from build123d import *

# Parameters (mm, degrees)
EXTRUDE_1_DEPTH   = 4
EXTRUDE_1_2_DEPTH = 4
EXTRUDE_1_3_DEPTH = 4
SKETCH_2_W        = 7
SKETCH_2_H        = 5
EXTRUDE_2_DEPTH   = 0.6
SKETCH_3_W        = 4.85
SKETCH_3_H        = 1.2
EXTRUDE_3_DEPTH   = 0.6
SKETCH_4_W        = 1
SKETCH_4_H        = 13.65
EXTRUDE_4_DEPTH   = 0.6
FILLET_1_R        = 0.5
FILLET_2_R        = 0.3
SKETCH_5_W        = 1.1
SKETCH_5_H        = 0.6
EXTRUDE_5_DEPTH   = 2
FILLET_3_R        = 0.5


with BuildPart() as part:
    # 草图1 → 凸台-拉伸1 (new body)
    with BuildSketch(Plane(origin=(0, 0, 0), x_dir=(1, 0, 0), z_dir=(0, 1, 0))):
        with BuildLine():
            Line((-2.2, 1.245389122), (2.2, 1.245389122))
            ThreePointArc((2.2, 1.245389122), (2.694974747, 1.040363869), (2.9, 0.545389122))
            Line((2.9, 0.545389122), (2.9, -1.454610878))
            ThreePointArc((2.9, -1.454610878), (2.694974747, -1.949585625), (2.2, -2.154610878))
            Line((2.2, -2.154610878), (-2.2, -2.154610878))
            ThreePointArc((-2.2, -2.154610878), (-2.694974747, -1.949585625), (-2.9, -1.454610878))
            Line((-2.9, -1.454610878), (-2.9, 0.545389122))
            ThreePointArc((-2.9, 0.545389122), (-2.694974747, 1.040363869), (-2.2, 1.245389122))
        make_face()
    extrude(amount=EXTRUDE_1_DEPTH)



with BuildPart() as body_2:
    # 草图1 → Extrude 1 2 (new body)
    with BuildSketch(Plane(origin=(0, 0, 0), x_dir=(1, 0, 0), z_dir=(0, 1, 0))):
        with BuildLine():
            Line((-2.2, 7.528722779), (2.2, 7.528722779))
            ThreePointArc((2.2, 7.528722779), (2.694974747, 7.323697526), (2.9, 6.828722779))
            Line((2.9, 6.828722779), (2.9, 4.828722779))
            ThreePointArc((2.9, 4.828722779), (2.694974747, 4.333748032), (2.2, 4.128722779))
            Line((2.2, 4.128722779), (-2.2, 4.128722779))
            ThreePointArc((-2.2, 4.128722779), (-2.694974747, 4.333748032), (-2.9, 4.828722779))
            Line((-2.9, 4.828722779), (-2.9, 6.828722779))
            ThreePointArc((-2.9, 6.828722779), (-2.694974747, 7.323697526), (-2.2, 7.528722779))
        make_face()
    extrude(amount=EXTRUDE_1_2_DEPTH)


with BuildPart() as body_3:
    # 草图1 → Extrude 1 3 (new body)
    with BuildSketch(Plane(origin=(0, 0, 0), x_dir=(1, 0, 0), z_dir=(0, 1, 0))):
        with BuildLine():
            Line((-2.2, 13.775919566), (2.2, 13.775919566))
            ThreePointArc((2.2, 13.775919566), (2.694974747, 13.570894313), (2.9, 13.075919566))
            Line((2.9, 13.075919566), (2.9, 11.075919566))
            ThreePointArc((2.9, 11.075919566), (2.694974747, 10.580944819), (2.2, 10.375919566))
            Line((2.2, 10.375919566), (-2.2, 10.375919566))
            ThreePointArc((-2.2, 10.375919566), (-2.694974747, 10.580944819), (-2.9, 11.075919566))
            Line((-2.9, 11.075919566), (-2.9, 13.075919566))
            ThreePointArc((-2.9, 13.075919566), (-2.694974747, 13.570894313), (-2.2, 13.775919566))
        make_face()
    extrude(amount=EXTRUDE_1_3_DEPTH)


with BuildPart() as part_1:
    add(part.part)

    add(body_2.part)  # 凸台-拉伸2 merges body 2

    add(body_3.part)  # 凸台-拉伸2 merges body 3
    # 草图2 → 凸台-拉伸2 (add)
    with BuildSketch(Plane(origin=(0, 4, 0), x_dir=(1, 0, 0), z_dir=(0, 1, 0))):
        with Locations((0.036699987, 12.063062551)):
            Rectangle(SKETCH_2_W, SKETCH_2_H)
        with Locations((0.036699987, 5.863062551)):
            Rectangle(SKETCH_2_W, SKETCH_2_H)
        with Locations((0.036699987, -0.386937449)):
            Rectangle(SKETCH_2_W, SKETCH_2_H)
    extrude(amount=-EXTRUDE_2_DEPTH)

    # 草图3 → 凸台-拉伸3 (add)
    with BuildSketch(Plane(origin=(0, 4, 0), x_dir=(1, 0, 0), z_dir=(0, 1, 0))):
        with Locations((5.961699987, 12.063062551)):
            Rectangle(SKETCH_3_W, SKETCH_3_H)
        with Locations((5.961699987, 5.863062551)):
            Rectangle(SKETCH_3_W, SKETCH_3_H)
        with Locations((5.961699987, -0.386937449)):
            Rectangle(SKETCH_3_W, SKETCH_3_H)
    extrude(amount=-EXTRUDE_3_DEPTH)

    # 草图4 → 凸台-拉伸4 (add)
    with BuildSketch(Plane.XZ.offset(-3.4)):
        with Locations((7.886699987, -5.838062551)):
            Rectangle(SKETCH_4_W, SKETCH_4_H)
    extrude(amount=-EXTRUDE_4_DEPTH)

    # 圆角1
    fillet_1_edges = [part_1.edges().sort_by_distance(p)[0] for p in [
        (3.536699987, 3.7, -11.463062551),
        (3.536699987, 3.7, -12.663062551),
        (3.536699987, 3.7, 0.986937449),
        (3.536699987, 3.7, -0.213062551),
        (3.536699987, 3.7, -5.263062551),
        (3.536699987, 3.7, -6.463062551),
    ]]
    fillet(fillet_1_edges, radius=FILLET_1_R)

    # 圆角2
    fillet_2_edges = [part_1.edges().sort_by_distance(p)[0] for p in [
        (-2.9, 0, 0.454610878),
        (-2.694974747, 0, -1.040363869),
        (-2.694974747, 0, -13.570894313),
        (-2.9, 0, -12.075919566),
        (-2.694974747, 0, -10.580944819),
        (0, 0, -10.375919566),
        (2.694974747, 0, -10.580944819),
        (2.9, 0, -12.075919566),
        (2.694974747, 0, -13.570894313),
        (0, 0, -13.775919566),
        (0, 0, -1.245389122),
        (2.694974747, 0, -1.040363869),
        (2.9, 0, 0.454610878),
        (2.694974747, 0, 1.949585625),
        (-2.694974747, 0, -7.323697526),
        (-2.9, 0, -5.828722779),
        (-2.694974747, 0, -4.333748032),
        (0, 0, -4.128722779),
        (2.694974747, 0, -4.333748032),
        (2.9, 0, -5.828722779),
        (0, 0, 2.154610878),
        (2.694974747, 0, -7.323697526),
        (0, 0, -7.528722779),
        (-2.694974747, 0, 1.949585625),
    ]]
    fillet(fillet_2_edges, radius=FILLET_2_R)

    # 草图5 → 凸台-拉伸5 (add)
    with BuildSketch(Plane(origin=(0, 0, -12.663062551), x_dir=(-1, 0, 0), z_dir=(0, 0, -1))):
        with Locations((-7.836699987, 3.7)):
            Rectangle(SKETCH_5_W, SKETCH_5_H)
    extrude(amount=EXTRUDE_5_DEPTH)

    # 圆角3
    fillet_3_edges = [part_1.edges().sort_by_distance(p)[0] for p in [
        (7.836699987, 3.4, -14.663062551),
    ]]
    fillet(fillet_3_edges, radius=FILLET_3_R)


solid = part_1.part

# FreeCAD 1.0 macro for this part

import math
import FreeCAD as App
import Part
import Sketcher
from FreeCAD import Vector


def edges_at(feature, points):
    """Names of the edges that pass closest to the given points."""
    edges = feature.Shape.Edges
    near = lambda p: min(range(len(edges)), key=lambda i: edges[i].distToShape(Part.Vertex(*p))[0])
    return sorted({f"Edge{near(p) + 1}" for p in points})

doc = App.newDocument("Part")
params = doc.addObject("Spreadsheet::Sheet", "Params")
for row, (alias, value) in enumerate([
    ("sketch1_radius", "0.7 mm"),
    ("sketch1_height", "2 mm"),
    ("sketch1_width", "4.4 mm"),
    ("pad1_length", "4 mm"),
    ("sketch2_radius", "0.7 mm"),
    ("sketch2_height", "2 mm"),
    ("sketch2_width", "4.4 mm"),
    ("pad2_length", "4 mm"),
    ("sketch3_radius", "0.7 mm"),
    ("sketch3_height", "2 mm"),
    ("sketch3_width", "4.4 mm"),
    ("pad3_length", "4 mm"),
    ("sketch4_width", "7 mm"),
    ("sketch4_height", "5 mm"),
    ("pad4_length", "0.6 mm"),
    ("sketch5_height", "1.2 mm"),
    ("sketch5_width", "4.85 mm"),
    ("pad5_length", "0.6 mm"),
    ("sketch6_width", "1 mm"),
    ("sketch6_height", "13.65 mm"),
    ("pad6_length", "0.6 mm"),
    ("fillet_radius", "0.5 mm"),
    ("fillet2_radius", "0.3 mm"),
    ("sketch7_width", "1.1 mm"),
    ("sketch7_height", "0.6 mm"),
    ("pad7_length", "2 mm"),
    ("fillet3_radius", "0.5 mm"),
], start=1):
    params.set(f"A{row}", alias)
    params.set(f"B{row}", "=" + value)
    params.setAlias(f"B{row}", alias)

body = doc.addObject("PartDesign::Body", "Body")

sketch1 = body.newObject("Sketcher::SketchObject", "Sketch")
sketch1.AttachmentSupport = (doc.getObject("XZ_Plane"), [""])
sketch1.MapMode = "FlatFace"
sketch1.addGeometry([
    Part.LineSegment(Vector(2.2, -1.2, 0), Vector(-2.2, -1.2, 0)),
    Part.ArcOfCircle(Part.Circle(Vector(-2.2, -0.5, 0), Vector(0, 0, 1), 0.7), math.radians(180), math.radians(270)),
    Part.LineSegment(Vector(-2.9, -0.5, 0), Vector(-2.9, 1.5, 0)),
    Part.ArcOfCircle(Part.Circle(Vector(-2.2, 1.5, 0), Vector(0, 0, 1), 0.7), math.radians(90), math.radians(180)),
    Part.LineSegment(Vector(-2.2, 2.2, 0), Vector(2.2, 2.2, 0)),
    Part.ArcOfCircle(Part.Circle(Vector(2.2, 1.5, 0), Vector(0, 0, 1), 0.7), math.radians(0), math.radians(90)),
    Part.LineSegment(Vector(2.9, 1.5, 0), Vector(2.9, -0.5, 0)),
    Part.ArcOfCircle(Part.Circle(Vector(2.2, -0.5, 0), Vector(0, 0, 1), 0.7), math.radians(-90), math.radians(0)),
], False)
sketch1.addConstraint([
    Sketcher.Constraint("Tangent", 0, 2, 1, 2),
    Sketcher.Constraint("Tangent", 1, 1, 2, 1),
    Sketcher.Constraint("Tangent", 2, 2, 3, 2),
    Sketcher.Constraint("Tangent", 3, 1, 4, 1),
    Sketcher.Constraint("Tangent", 4, 2, 5, 2),
    Sketcher.Constraint("Tangent", 5, 1, 6, 1),
    Sketcher.Constraint("Tangent", 6, 2, 7, 2),
    Sketcher.Constraint("Tangent", 7, 1, 0, 1),
    Sketcher.Constraint("Horizontal", 0),
    Sketcher.Constraint("Vertical", 2),
    Sketcher.Constraint("Horizontal", 4),
    Sketcher.Constraint("Vertical", 6),
    Sketcher.Constraint("Equal", 1, 3),
    Sketcher.Constraint("Equal", 3, 5),
    Sketcher.Constraint("Equal", 5, 7),
    Sketcher.Constraint("Radius", 1, 0.7),
    Sketcher.Constraint("DistanceY", 2, 1, 2, 2, 2.0),
    Sketcher.Constraint("DistanceX", 0, 2, 0, 1, 4.4),
    Sketcher.Constraint("DistanceX", 1, 3, -1, 1, 2.2),
    Sketcher.Constraint("DistanceY", 1, 3, -1, 1, 0.545389),
])
sketch1.setExpression("Constraints[15]", "Params.sketch1_radius")
sketch1.setExpression("Constraints[16]", "Params.sketch1_height")
sketch1.setExpression("Constraints[17]", "Params.sketch1_width")
pad1 = body.newObject("PartDesign::Pad", "Pad")
pad1.Profile = sketch1
pad1.setExpression("Length", "Params.pad1_length")
pad1.Reversed = True
body2 = doc.addObject("PartDesign::Body", "Body001")

sketch2 = body2.newObject("Sketcher::SketchObject", "Sketch001")
sketch2.AttachmentSupport = (doc.getObject("XZ_Plane001"), [""])
sketch2.MapMode = "FlatFace"
sketch2.addGeometry([
    Part.LineSegment(Vector(2.2, -7.5, 0), Vector(-2.2, -7.5, 0)),
    Part.ArcOfCircle(Part.Circle(Vector(-2.2, -6.8, 0), Vector(0, 0, 1), 0.7), math.radians(180), math.radians(270)),
    Part.LineSegment(Vector(-2.9, -6.8, 0), Vector(-2.9, -4.8, 0)),
    Part.ArcOfCircle(Part.Circle(Vector(-2.2, -4.8, 0), Vector(0, 0, 1), 0.7), math.radians(90), math.radians(180)),
    Part.LineSegment(Vector(-2.2, -4.1, 0), Vector(2.2, -4.1, 0)),
    Part.ArcOfCircle(Part.Circle(Vector(2.2, -4.8, 0), Vector(0, 0, 1), 0.7), math.radians(0), math.radians(90)),
    Part.LineSegment(Vector(2.9, -4.8, 0), Vector(2.9, -6.8, 0)),
    Part.ArcOfCircle(Part.Circle(Vector(2.2, -6.8, 0), Vector(0, 0, 1), 0.7), math.radians(-90), math.radians(0)),
], False)
sketch2.addConstraint([
    Sketcher.Constraint("Tangent", 0, 2, 1, 2),
    Sketcher.Constraint("Tangent", 1, 1, 2, 1),
    Sketcher.Constraint("Tangent", 2, 2, 3, 2),
    Sketcher.Constraint("Tangent", 3, 1, 4, 1),
    Sketcher.Constraint("Tangent", 4, 2, 5, 2),
    Sketcher.Constraint("Tangent", 5, 1, 6, 1),
    Sketcher.Constraint("Tangent", 6, 2, 7, 2),
    Sketcher.Constraint("Tangent", 7, 1, 0, 1),
    Sketcher.Constraint("Horizontal", 0),
    Sketcher.Constraint("Vertical", 2),
    Sketcher.Constraint("Horizontal", 4),
    Sketcher.Constraint("Vertical", 6),
    Sketcher.Constraint("Equal", 1, 3),
    Sketcher.Constraint("Equal", 3, 5),
    Sketcher.Constraint("Equal", 5, 7),
    Sketcher.Constraint("Radius", 1, 0.7),
    Sketcher.Constraint("DistanceY", 2, 1, 2, 2, 2.0),
    Sketcher.Constraint("DistanceX", 0, 2, 0, 1, 4.4),
    Sketcher.Constraint("DistanceX", 1, 3, -1, 1, 2.2),
    Sketcher.Constraint("DistanceY", 1, 3, -1, 1, 6.828723),
])
sketch2.setExpression("Constraints[15]", "Params.sketch2_radius")
sketch2.setExpression("Constraints[16]", "Params.sketch2_height")
sketch2.setExpression("Constraints[17]", "Params.sketch2_width")
pad2 = body2.newObject("PartDesign::Pad", "Pad001")
pad2.Profile = sketch2
pad2.setExpression("Length", "Params.pad2_length")
pad2.Reversed = True
body3 = doc.addObject("PartDesign::Body", "Body002")

sketch3 = body3.newObject("Sketcher::SketchObject", "Sketch002")
sketch3.AttachmentSupport = (doc.getObject("XZ_Plane002"), [""])
sketch3.MapMode = "FlatFace"
sketch3.addGeometry([
    Part.LineSegment(Vector(2.2, -13.8, 0), Vector(-2.2, -13.8, 0)),
    Part.ArcOfCircle(Part.Circle(Vector(-2.2, -13.1, 0), Vector(0, 0, 1), 0.7), math.radians(180), math.radians(270)),
    Part.LineSegment(Vector(-2.9, -13.1, 0), Vector(-2.9, -11.1, 0)),
    Part.ArcOfCircle(Part.Circle(Vector(-2.2, -11.1, 0), Vector(0, 0, 1), 0.7), math.radians(90), math.radians(180)),
    Part.LineSegment(Vector(-2.2, -10.4, 0), Vector(2.2, -10.4, 0)),
    Part.ArcOfCircle(Part.Circle(Vector(2.2, -11.1, 0), Vector(0, 0, 1), 0.7), math.radians(0), math.radians(90)),
    Part.LineSegment(Vector(2.9, -11.1, 0), Vector(2.9, -13.1, 0)),
    Part.ArcOfCircle(Part.Circle(Vector(2.2, -13.1, 0), Vector(0, 0, 1), 0.7), math.radians(-90), math.radians(0)),
], False)
sketch3.addConstraint([
    Sketcher.Constraint("Tangent", 0, 2, 1, 2),
    Sketcher.Constraint("Tangent", 1, 1, 2, 1),
    Sketcher.Constraint("Tangent", 2, 2, 3, 2),
    Sketcher.Constraint("Tangent", 3, 1, 4, 1),
    Sketcher.Constraint("Tangent", 4, 2, 5, 2),
    Sketcher.Constraint("Tangent", 5, 1, 6, 1),
    Sketcher.Constraint("Tangent", 6, 2, 7, 2),
    Sketcher.Constraint("Tangent", 7, 1, 0, 1),
    Sketcher.Constraint("Horizontal", 0),
    Sketcher.Constraint("Vertical", 2),
    Sketcher.Constraint("Horizontal", 4),
    Sketcher.Constraint("Vertical", 6),
    Sketcher.Constraint("Equal", 1, 3),
    Sketcher.Constraint("Equal", 3, 5),
    Sketcher.Constraint("Equal", 5, 7),
    Sketcher.Constraint("Radius", 1, 0.7),
    Sketcher.Constraint("DistanceY", 2, 1, 2, 2, 2.0),
    Sketcher.Constraint("DistanceX", 0, 2, 0, 1, 4.4),
    Sketcher.Constraint("DistanceX", 1, 3, -1, 1, 2.2),
    Sketcher.Constraint("DistanceY", 1, 3, -1, 1, 13.07592),
])
sketch3.setExpression("Constraints[15]", "Params.sketch3_radius")
sketch3.setExpression("Constraints[16]", "Params.sketch3_height")
sketch3.setExpression("Constraints[17]", "Params.sketch3_width")
pad3 = body3.newObject("PartDesign::Pad", "Pad002")
pad3.Profile = sketch3
pad3.setExpression("Length", "Params.pad3_length")
pad3.Reversed = True
body.AllowCompound = True
doc.recompute()

boolean = body.newObject("PartDesign::Boolean", "Boolean")
boolean.Type = "Fuse"
boolean.addObjects([body2])
doc.recompute()

boolean2 = body.newObject("PartDesign::Boolean", "Boolean001")
boolean2.Type = "Fuse"
boolean2.addObjects([body3])

sketch4 = body.newObject("Sketcher::SketchObject", "Sketch003")
sketch4.AttachmentSupport = (doc.getObject("XZ_Plane"), [""])
sketch4.MapMode = "FlatFace"
sketch4.AttachmentOffset = App.Placement(Vector(0, 0, -4), App.Rotation())
sketch4.addGeometry([
    Part.LineSegment(Vector(-3, -15, 0), Vector(-3, -10, 0)),
    Part.LineSegment(Vector(-3, -10, 0), Vector(4, -10, 0)),
    Part.LineSegment(Vector(4, -10, 0), Vector(4, -15, 0)),
    Part.LineSegment(Vector(4, -15, 0), Vector(-3, -15, 0)),
    Part.LineSegment(Vector(-3, -8, 0), Vector(-3, -3, 0)),
    Part.LineSegment(Vector(-3, -3, 0), Vector(4, -3, 0)),
    Part.LineSegment(Vector(4, -3, 0), Vector(4, -8, 0)),
    Part.LineSegment(Vector(4, -8, 0), Vector(-3, -8, 0)),
    Part.LineSegment(Vector(-3, -2, 0), Vector(-3, 3, 0)),
    Part.LineSegment(Vector(-3, 3, 0), Vector(4, 3, 0)),
    Part.LineSegment(Vector(4, 3, 0), Vector(4, -2, 0)),
    Part.LineSegment(Vector(4, -2, 0), Vector(-3, -2, 0)),
], False)
sketch4.addConstraint([
    Sketcher.Constraint("Coincident", 0, 2, 1, 1),
    Sketcher.Constraint("Coincident", 1, 2, 2, 1),
    Sketcher.Constraint("Coincident", 2, 2, 3, 1),
    Sketcher.Constraint("Coincident", 3, 2, 0, 1),
    Sketcher.Constraint("Coincident", 4, 2, 5, 1),
    Sketcher.Constraint("Coincident", 5, 2, 6, 1),
    Sketcher.Constraint("Coincident", 6, 2, 7, 1),
    Sketcher.Constraint("Coincident", 7, 2, 4, 1),
    Sketcher.Constraint("Coincident", 8, 2, 9, 1),
    Sketcher.Constraint("Coincident", 9, 2, 10, 1),
    Sketcher.Constraint("Coincident", 10, 2, 11, 1),
    Sketcher.Constraint("Coincident", 11, 2, 8, 1),
    Sketcher.Constraint("Vertical", 0),
    Sketcher.Constraint("Horizontal", 1),
    Sketcher.Constraint("Vertical", 2),
    Sketcher.Constraint("Horizontal", 3),
    Sketcher.Constraint("Vertical", 4),
    Sketcher.Constraint("Horizontal", 5),
    Sketcher.Constraint("Vertical", 6),
    Sketcher.Constraint("Horizontal", 7),
    Sketcher.Constraint("Vertical", 8),
    Sketcher.Constraint("Horizontal", 9),
    Sketcher.Constraint("Vertical", 10),
    Sketcher.Constraint("Horizontal", 11),
    Sketcher.Constraint("Vertical", 3, 2, 4, 2),
    Sketcher.Constraint("Vertical", 2, 2, 5, 2),
    Sketcher.Constraint("Vertical", 7, 2, 8, 2),
    Sketcher.Constraint("Vertical", 6, 2, 9, 2),
    Sketcher.Constraint("Equal", 2, 4),
    Sketcher.Constraint("Equal", 6, 8),
    Sketcher.Constraint("DistanceX", 1, 1, 1, 2, 7.0),
    Sketcher.Constraint("DistanceY", 0, 1, 0, 2, 5.0),
    Sketcher.Constraint("DistanceY", 0, 2, 4, 2, 6.2),
    Sketcher.Constraint("DistanceY", 4, 2, 8, 2, 6.25),
    Sketcher.Constraint("DistanceX", 0, 2, -1, 1, 3.4633),
    Sketcher.Constraint("DistanceY", 0, 2, -1, 1, 9.563063),
])
sketch4.setExpression("Constraints[30]", "Params.sketch4_width")
sketch4.setExpression("Constraints[31]", "Params.sketch4_height")
pad4 = body.newObject("PartDesign::Pad", "Pad003")
pad4.Profile = sketch4
pad4.setExpression("Length", "Params.pad4_length")

sketch5 = body.newObject("Sketcher::SketchObject", "Sketch004")
sketch5.AttachmentSupport = (doc.getObject("XZ_Plane"), [""])
sketch5.MapMode = "FlatFace"
sketch5.AttachmentOffset = App.Placement(Vector(0, 0, -4), App.Rotation())
sketch5.addGeometry([
    Part.LineSegment(Vector(3.5, -12.7, 0), Vector(3.5, -11.5, 0)),
    Part.LineSegment(Vector(3.5, -11.5, 0), Vector(8.4, -11.5, 0)),
    Part.LineSegment(Vector(8.4, -11.5, 0), Vector(8.4, -12.7, 0)),
    Part.LineSegment(Vector(8.4, -12.7, 0), Vector(3.5, -12.7, 0)),
    Part.LineSegment(Vector(3.5, -6.5, 0), Vector(3.5, -5.3, 0)),
    Part.LineSegment(Vector(3.5, -5.3, 0), Vector(8.4, -5.3, 0)),
    Part.LineSegment(Vector(8.4, -5.3, 0), Vector(8.4, -6.5, 0)),
    Part.LineSegment(Vector(8.4, -6.5, 0), Vector(3.5, -6.5, 0)),
    Part.LineSegment(Vector(3.5, -0.2, 0), Vector(3.5, 1, 0)),
    Part.LineSegment(Vector(3.5, 1, 0), Vector(8.4, 1, 0)),
    Part.LineSegment(Vector(8.4, 1, 0), Vector(8.4, -0.2, 0)),
    Part.LineSegment(Vector(8.4, -0.2, 0), Vector(3.5, -0.2, 0)),
], False)
sketch5.addConstraint([
    Sketcher.Constraint("Coincident", 0, 2, 1, 1),
    Sketcher.Constraint("Coincident", 1, 2, 2, 1),
    Sketcher.Constraint("Coincident", 2, 2, 3, 1),
    Sketcher.Constraint("Coincident", 3, 2, 0, 1),
    Sketcher.Constraint("Coincident", 4, 2, 5, 1),
    Sketcher.Constraint("Coincident", 5, 2, 6, 1),
    Sketcher.Constraint("Coincident", 6, 2, 7, 1),
    Sketcher.Constraint("Coincident", 7, 2, 4, 1),
    Sketcher.Constraint("Coincident", 8, 2, 9, 1),
    Sketcher.Constraint("Coincident", 9, 2, 10, 1),
    Sketcher.Constraint("Coincident", 10, 2, 11, 1),
    Sketcher.Constraint("Coincident", 11, 2, 8, 1),
    Sketcher.Constraint("Vertical", 0),
    Sketcher.Constraint("Horizontal", 1),
    Sketcher.Constraint("Vertical", 2),
    Sketcher.Constraint("Horizontal", 3),
    Sketcher.Constraint("Vertical", 4),
    Sketcher.Constraint("Horizontal", 5),
    Sketcher.Constraint("Vertical", 6),
    Sketcher.Constraint("Horizontal", 7),
    Sketcher.Constraint("Vertical", 8),
    Sketcher.Constraint("Horizontal", 9),
    Sketcher.Constraint("Vertical", 10),
    Sketcher.Constraint("Horizontal", 11),
    Sketcher.Constraint("Vertical", 3, 2, 4, 2),
    Sketcher.Constraint("Vertical", 2, 2, 5, 2),
    Sketcher.Constraint("Vertical", 7, 2, 8, 2),
    Sketcher.Constraint("Vertical", 6, 2, 9, 2),
    Sketcher.Constraint("Equal", 2, 4),
    Sketcher.Constraint("Equal", 6, 8),
    Sketcher.Constraint("DistanceY", 0, 1, 0, 2, 1.2),
    Sketcher.Constraint("DistanceY", 1, 2, 6, 2, 5.0),
    Sketcher.Constraint("DistanceX", 1, 1, 1, 2, 4.85),
    Sketcher.Constraint("DistanceY", 4, 2, 8, 2, 6.25),
    Sketcher.Constraint("DistanceX", -1, 1, 0, 2, 3.5367),
    Sketcher.Constraint("DistanceY", 0, 2, -1, 1, 11.463063),
])
sketch5.setExpression("Constraints[30]", "Params.sketch5_height")
sketch5.setExpression("Constraints[32]", "Params.sketch5_width")
pad5 = body.newObject("PartDesign::Pad", "Pad004")
pad5.Profile = sketch5
pad5.setExpression("Length", "Params.pad5_length")

sketch6 = body.newObject("Sketcher::SketchObject", "Sketch005")
sketch6.AttachmentSupport = (doc.getObject("XZ_Plane"), [""])
sketch6.MapMode = "FlatFace"
sketch6.AttachmentOffset = App.Placement(Vector(0, 0, -3.4), App.Rotation())
sketch6.addGeometry([
    Part.LineSegment(Vector(7.4, 1, 0), Vector(7.4, -12.7, 0)),
    Part.LineSegment(Vector(7.4, -12.7, 0), Vector(8.4, -12.7, 0)),
    Part.LineSegment(Vector(8.4, -12.7, 0), Vector(8.4, 1, 0)),
    Part.LineSegment(Vector(8.4, 1, 0), Vector(7.4, 1, 0)),
], False)
sketch6.addConstraint([
    Sketcher.Constraint("Coincident", 0, 2, 1, 1),
    Sketcher.Constraint("Coincident", 1, 2, 2, 1),
    Sketcher.Constraint("Coincident", 2, 2, 3, 1),
    Sketcher.Constraint("Coincident", 3, 2, 0, 1),
    Sketcher.Constraint("Vertical", 0),
    Sketcher.Constraint("Horizontal", 1),
    Sketcher.Constraint("Vertical", 2),
    Sketcher.Constraint("Horizontal", 3),
    Sketcher.Constraint("DistanceX", 1, 1, 1, 2, 1.0),
    Sketcher.Constraint("DistanceY", 0, 2, 0, 1, 13.65),
    Sketcher.Constraint("DistanceX", -1, 1, 0, 2, 7.3867),
    Sketcher.Constraint("DistanceY", 0, 2, -1, 1, 12.663063),
])
sketch6.setExpression("Constraints[8]", "Params.sketch6_width")
sketch6.setExpression("Constraints[9]", "Params.sketch6_height")
pad6 = body.newObject("PartDesign::Pad", "Pad005")
pad6.Profile = sketch6
pad6.setExpression("Length", "Params.pad6_length")
pad6.Reversed = True
doc.recompute()

fillet = body.newObject("PartDesign::Fillet", "Fillet")
fillet.Base = (pad6, edges_at(pad6, [
    (3.537, 3.7, -11.463),
    (3.537, 3.7, -12.663),
    (3.537, 3.7, 0.987),
    (3.537, 3.7, -0.213),
    (3.537, 3.7, -5.263),
    (3.537, 3.7, -6.463),
]))
fillet.setExpression("Radius", "Params.fillet_radius")
doc.recompute()

fillet2 = body.newObject("PartDesign::Fillet", "Fillet001")
fillet2.Base = (fillet, edges_at(fillet, [
    (-2.9, 0, 0.455),
    (-2.695, 0, -1.04),
    (-2.695, 0, -13.571),
    (-2.9, 0, -12.076),
    (-2.695, 0, -10.581),
    (0, 0, -10.376),
    (2.695, 0, -10.581),
    (2.9, 0, -12.076),
    (2.695, 0, -13.571),
    (0, 0, -13.776),
    (0, 0, -1.245),
    (2.695, 0, -1.04),
    (2.9, 0, 0.455),
    (2.695, 0, 1.95),
    (-2.695, 0, -7.324),
    (-2.9, 0, -5.829),
    (-2.695, 0, -4.334),
    (0, 0, -4.129),
    (2.695, 0, -4.334),
    (2.9, 0, -5.829),
    (0, 0, 2.155),
    (2.695, 0, -7.324),
    (0, 0, -7.529),
    (-2.695, 0, 1.95),
]))
fillet2.setExpression("Radius", "Params.fillet2_radius")

sketch7 = body.newObject("Sketcher::SketchObject", "Sketch006")
sketch7.AttachmentSupport = (doc.getObject("XY_Plane"), [""])
sketch7.MapMode = "FlatFace"
sketch7.AttachmentOffset = App.Placement(Vector(0, 0, -12.663063), App.Rotation())
sketch7.addGeometry([
    Part.LineSegment(Vector(8.4, 4, 0), Vector(8.4, 3.4, 0)),
    Part.LineSegment(Vector(8.4, 3.4, 0), Vector(7.3, 3.4, 0)),
    Part.LineSegment(Vector(7.3, 3.4, 0), Vector(7.3, 4, 0)),
    Part.LineSegment(Vector(7.3, 4, 0), Vector(8.4, 4, 0)),
], False)
sketch7.addConstraint([
    Sketcher.Constraint("Coincident", 0, 2, 1, 1),
    Sketcher.Constraint("Coincident", 1, 2, 2, 1),
    Sketcher.Constraint("Coincident", 2, 2, 3, 1),
    Sketcher.Constraint("Coincident", 3, 2, 0, 1),
    Sketcher.Constraint("Vertical", 0),
    Sketcher.Constraint("Horizontal", 1),
    Sketcher.Constraint("Vertical", 2),
    Sketcher.Constraint("Horizontal", 3),
    Sketcher.Constraint("DistanceX", 1, 2, 1, 1, 1.1),
    Sketcher.Constraint("DistanceY", 0, 2, 0, 1, 0.6),
    Sketcher.Constraint("DistanceY", -1, 1, 2, 2, 4.0),
    Sketcher.Constraint("DistanceX", -1, 1, 0, 2, 8.3867),
])
sketch7.setExpression("Constraints[8]", "Params.sketch7_width")
sketch7.setExpression("Constraints[9]", "Params.sketch7_height")
pad7 = body.newObject("PartDesign::Pad", "Pad006")
pad7.Profile = sketch7
pad7.setExpression("Length", "Params.pad7_length")
pad7.Reversed = True
doc.recompute()

fillet3 = body.newObject("PartDesign::Fillet", "Fillet002")
fillet3.Base = (pad7, edges_at(pad7, [(7.837, 3.4, -14.663)]))
fillet3.setExpression("Radius", "Params.fillet3_radius")

doc.recompute()
